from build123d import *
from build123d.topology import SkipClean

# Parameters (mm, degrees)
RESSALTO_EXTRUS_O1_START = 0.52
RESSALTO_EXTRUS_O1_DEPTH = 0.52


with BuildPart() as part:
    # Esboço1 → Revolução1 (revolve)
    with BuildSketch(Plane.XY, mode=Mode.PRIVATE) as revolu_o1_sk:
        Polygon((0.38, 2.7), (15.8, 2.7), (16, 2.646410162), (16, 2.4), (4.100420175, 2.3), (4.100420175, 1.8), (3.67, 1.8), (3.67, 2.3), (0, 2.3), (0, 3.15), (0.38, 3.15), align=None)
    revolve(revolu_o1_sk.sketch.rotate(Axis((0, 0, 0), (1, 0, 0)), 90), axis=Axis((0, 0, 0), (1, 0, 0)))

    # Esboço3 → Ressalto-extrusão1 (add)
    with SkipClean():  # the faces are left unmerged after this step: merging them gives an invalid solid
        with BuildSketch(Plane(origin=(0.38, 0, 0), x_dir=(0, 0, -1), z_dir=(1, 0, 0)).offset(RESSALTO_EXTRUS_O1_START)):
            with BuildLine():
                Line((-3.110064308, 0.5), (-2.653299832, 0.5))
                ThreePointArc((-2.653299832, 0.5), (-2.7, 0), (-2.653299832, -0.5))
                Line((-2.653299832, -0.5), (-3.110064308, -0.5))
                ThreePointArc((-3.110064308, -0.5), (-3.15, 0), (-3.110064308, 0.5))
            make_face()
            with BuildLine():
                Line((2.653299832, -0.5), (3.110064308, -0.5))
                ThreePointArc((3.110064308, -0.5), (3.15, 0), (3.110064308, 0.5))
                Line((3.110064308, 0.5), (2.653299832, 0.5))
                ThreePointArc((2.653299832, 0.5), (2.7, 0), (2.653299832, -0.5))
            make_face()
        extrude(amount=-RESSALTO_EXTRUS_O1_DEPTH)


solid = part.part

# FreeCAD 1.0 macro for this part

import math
import FreeCAD as App
import Part
import Sketcher
Q = App.Units.Quantity

doc = App.newDocument("Part")
params = doc.addObject("Spreadsheet::Sheet", "Params")
for row, (alias, value) in enumerate([
    ("sketch1_height", "0.5 mm"),
    ("sketch1_length", "11.9 mm"),
    ("sketch1_width", "15.42 mm"),
    ("sketch1_width2", "0.38 mm"),
    ("sketch1_width3", "3.67 mm"),
    ("revolution_angle", "360 deg"),
    ("sketch2_radius", "2.7 mm"),
    ("sketch2_radius2", "3.15 mm"),
    ("pad1_length", "0.52 mm"),
], start=1):
    params.set(f"A{row}", alias)
    params.set(f"B{row}", "=" + value)
    params.setAlias(f"B{row}", alias)

body = doc.addObject("PartDesign::Body", "Body")

sketch1 = body.newObject("Sketcher::SketchObject", "Sketch")
sketch1.AttachmentSupport = (doc.getObject("XY_Plane"), [""])
sketch1.MapMode = "FlatFace"
sketch1.addGeometry(Part.LineSegment(App.Vector(15.8, 2.7, 0), App.Vector(0.38, 2.7, 0)), False)
sketch1.addGeometry(Part.LineSegment(App.Vector(0.38, 2.7, 0), App.Vector(0.38, 3.15, 0)), False)
sketch1.addGeometry(Part.LineSegment(App.Vector(0.38, 3.15, 0), App.Vector(0, 3.15, 0)), False)
sketch1.addGeometry(Part.LineSegment(App.Vector(0, 3.15, 0), App.Vector(0, 2.3, 0)), False)
sketch1.addGeometry(Part.LineSegment(App.Vector(0, 2.3, 0), App.Vector(3.67, 2.3, 0)), False)
sketch1.addGeometry(Part.LineSegment(App.Vector(3.67, 2.3, 0), App.Vector(3.67, 1.8, 0)), False)
sketch1.addGeometry(Part.LineSegment(App.Vector(3.67, 1.8, 0), App.Vector(4.10042, 1.8, 0)), False)
sketch1.addGeometry(Part.LineSegment(App.Vector(4.10042, 1.8, 0), App.Vector(4.10042, 2.3, 0)), False)
sketch1.addGeometry(Part.LineSegment(App.Vector(4.10042, 2.3, 0), App.Vector(16, 2.4, 0)), False)
sketch1.addGeometry(Part.LineSegment(App.Vector(16, 2.4, 0), App.Vector(16, 2.64641, 0)), False)
sketch1.addGeometry(Part.LineSegment(App.Vector(16, 2.64641, 0), App.Vector(15.8, 2.7, 0)), False)
sketch1.addConstraint(Sketcher.Constraint("Coincident", 0, 2, 1, 1))
sketch1.addConstraint(Sketcher.Constraint("Coincident", 1, 2, 2, 1))
sketch1.addConstraint(Sketcher.Constraint("Coincident", 2, 2, 3, 1))
sketch1.addConstraint(Sketcher.Constraint("Coincident", 3, 2, 4, 1))
sketch1.addConstraint(Sketcher.Constraint("Coincident", 4, 2, 5, 1))
sketch1.addConstraint(Sketcher.Constraint("Coincident", 5, 2, 6, 1))
sketch1.addConstraint(Sketcher.Constraint("Coincident", 6, 2, 7, 1))
sketch1.addConstraint(Sketcher.Constraint("Coincident", 7, 2, 8, 1))
sketch1.addConstraint(Sketcher.Constraint("Coincident", 8, 2, 9, 1))
sketch1.addConstraint(Sketcher.Constraint("Coincident", 9, 2, 10, 1))
sketch1.addConstraint(Sketcher.Constraint("Coincident", 10, 2, 0, 1))
sketch1.addConstraint(Sketcher.Constraint("Horizontal", 0))
sketch1.addConstraint(Sketcher.Constraint("Vertical", 1))
sketch1.addConstraint(Sketcher.Constraint("Horizontal", 2))
sketch1.addConstraint(Sketcher.Constraint("Vertical", 3))
sketch1.addConstraint(Sketcher.Constraint("Horizontal", 4))
sketch1.addConstraint(Sketcher.Constraint("Vertical", 5))
sketch1.addConstraint(Sketcher.Constraint("Horizontal", 6))
sketch1.addConstraint(Sketcher.Constraint("Vertical", 7))
sketch1.addConstraint(Sketcher.Constraint("Vertical", 9))
sketch1.addConstraint(Sketcher.Constraint("PointOnObject", 2, 2, -2))
sketch1.addConstraint(Sketcher.Constraint("Horizontal", 4, 2, 7, 2))
sketch1.addConstraint(Sketcher.Constraint("Angle", 10, Q("165 deg")))
sketch1.addConstraint(Sketcher.Constraint("DistanceY", 5, 2, 5, 1, Q("0.5 mm")))
sketch1.addConstraint(Sketcher.Constraint("DistanceX", -1, 1, 8, 2, Q("16 mm")))
sketch1.addConstraint(Sketcher.Constraint("Distance", 8, Q("11.9 mm")))
sketch1.addConstraint(Sketcher.Constraint("DistanceX", 0, 2, 0, 1, Q("15.42 mm")))
sketch1.addConstraint(Sketcher.Constraint("DistanceX", 2, 2, 2, 1, Q("0.38 mm")))
sketch1.addConstraint(Sketcher.Constraint("DistanceX", 4, 1, 4, 2, Q("3.67 mm")))
sketch1.addConstraint(Sketcher.Constraint("DistanceY", 1, 1, 1, 2, Q("0.45 mm")))
sketch1.addConstraint(Sketcher.Constraint("DistanceY", 3, 2, 3, 1, Q("0.85 mm")))
sketch1.addConstraint(Sketcher.Constraint("DistanceY", -1, 1, 0, 2, Q("2.7 mm")))
sketch1.addConstraint(Sketcher.Constraint("DistanceY", -1, 1, 8, 2, Q("2.4 mm")))
sketch1.setExpression("Constraints[23]", "Params.sketch1_height")
sketch1.setExpression("Constraints[25]", "Params.sketch1_length")
sketch1.setExpression("Constraints[26]", "Params.sketch1_width")
sketch1.setExpression("Constraints[27]", "Params.sketch1_width2")
sketch1.setExpression("Constraints[28]", "Params.sketch1_width3")
revolution = body.newObject("PartDesign::Revolution", "Revolution")
revolution.Profile = sketch1
revolution.ReferenceAxis = (sketch1, ["H_Axis"])
revolution.setExpression("Angle", "Params.revolution_angle")

sketch2 = body.newObject("Sketcher::SketchObject", "Sketch001")
sketch2.AttachmentSupport = (doc.getObject("YZ_Plane"), [""])
sketch2.MapMode = "FlatFace"
sketch2.AttachmentOffset = App.Placement(App.Vector(0, 0, 0.9), App.Rotation())
sketch2.addGeometry(Part.LineSegment(App.Vector(0.5, 2.6533, 0), App.Vector(0.5, 3.110064, 0)), False)
sketch2.addGeometry(Part.ArcOfCircle(Part.Circle(App.Vector(0, 0, 0), App.Vector(0, 0, 1), 3.15), math.radians(80.866802), math.radians(99.133198)), False)
sketch2.addGeometry(Part.LineSegment(App.Vector(-0.5, 3.110064, 0), App.Vector(-0.5, 2.6533, 0)), False)
sketch2.addGeometry(Part.ArcOfCircle(Part.Circle(App.Vector(0, 0, 0), App.Vector(0, 0, 1), 2.7), math.radians(79.328071), math.radians(100.671929)), False)
sketch2.addGeometry(Part.LineSegment(App.Vector(-0.5, -2.6533, 0), App.Vector(-0.5, -3.110064, 0)), False)
sketch2.addGeometry(Part.ArcOfCircle(Part.Circle(App.Vector(0, 0, 0), App.Vector(0, 0, 1), 3.15), math.radians(-99.133198), math.radians(-80.866802)), False)
sketch2.addGeometry(Part.LineSegment(App.Vector(0.5, -3.110064, 0), App.Vector(0.5, -2.6533, 0)), False)
sketch2.addGeometry(Part.ArcOfCircle(Part.Circle(App.Vector(0, 0, 0), App.Vector(0, 0, 1), 2.7), math.radians(-100.671929), math.radians(-79.328071)), False)
sketch2.addConstraint(Sketcher.Constraint("Coincident", 0, 2, 1, 1))
sketch2.addConstraint(Sketcher.Constraint("Coincident", 1, 2, 2, 1))
sketch2.addConstraint(Sketcher.Constraint("Coincident", 2, 2, 3, 2))
sketch2.addConstraint(Sketcher.Constraint("Coincident", 3, 1, 0, 1))
sketch2.addConstraint(Sketcher.Constraint("Coincident", 4, 2, 5, 1))
sketch2.addConstraint(Sketcher.Constraint("Coincident", 5, 2, 6, 1))
sketch2.addConstraint(Sketcher.Constraint("Coincident", 6, 2, 7, 2))
sketch2.addConstraint(Sketcher.Constraint("Coincident", 7, 1, 4, 1))
sketch2.addConstraint(Sketcher.Constraint("Vertical", 0))
sketch2.addConstraint(Sketcher.Constraint("Vertical", 2))
sketch2.addConstraint(Sketcher.Constraint("Vertical", 4))
sketch2.addConstraint(Sketcher.Constraint("Vertical", 6))
sketch2.addConstraint(Sketcher.Constraint("Coincident", 1, 3, -1, 1))
sketch2.addConstraint(Sketcher.Constraint("Coincident", 3, 3, -1, 1))
sketch2.addConstraint(Sketcher.Constraint("Coincident", 5, 3, -1, 1))
sketch2.addConstraint(Sketcher.Constraint("Coincident", 7, 3, -1, 1))
sketch2.addConstraint(Sketcher.Constraint("Equal", 1, 5))
sketch2.addConstraint(Sketcher.Constraint("Equal", 3, 7))
sketch2.addConstraint(Sketcher.Constraint("Horizontal", 0, 2, 1, 2))
sketch2.addConstraint(Sketcher.Constraint("Horizontal", 4, 2, 5, 2))
sketch2.addConstraint(Sketcher.Constraint("Vertical", 2, 2, 4, 2))
sketch2.addConstraint(Sketcher.Constraint("Radius", 3, Q("2.7 mm")))
sketch2.addConstraint(Sketcher.Constraint("Radius", 1, Q("3.15 mm")))
sketch2.addConstraint(Sketcher.Constraint("DistanceX", 1, 2, 0, 2, Q("1 mm")))
sketch2.setExpression("Constraints[21]", "Params.sketch2_radius")
sketch2.setExpression("Constraints[22]", "Params.sketch2_radius2")
pad1 = body.newObject("PartDesign::Pad", "Pad")
pad1.Profile = sketch2
pad1.setExpression("Length", "Params.pad1_length")
pad1.Reversed = True

doc.recompute()
